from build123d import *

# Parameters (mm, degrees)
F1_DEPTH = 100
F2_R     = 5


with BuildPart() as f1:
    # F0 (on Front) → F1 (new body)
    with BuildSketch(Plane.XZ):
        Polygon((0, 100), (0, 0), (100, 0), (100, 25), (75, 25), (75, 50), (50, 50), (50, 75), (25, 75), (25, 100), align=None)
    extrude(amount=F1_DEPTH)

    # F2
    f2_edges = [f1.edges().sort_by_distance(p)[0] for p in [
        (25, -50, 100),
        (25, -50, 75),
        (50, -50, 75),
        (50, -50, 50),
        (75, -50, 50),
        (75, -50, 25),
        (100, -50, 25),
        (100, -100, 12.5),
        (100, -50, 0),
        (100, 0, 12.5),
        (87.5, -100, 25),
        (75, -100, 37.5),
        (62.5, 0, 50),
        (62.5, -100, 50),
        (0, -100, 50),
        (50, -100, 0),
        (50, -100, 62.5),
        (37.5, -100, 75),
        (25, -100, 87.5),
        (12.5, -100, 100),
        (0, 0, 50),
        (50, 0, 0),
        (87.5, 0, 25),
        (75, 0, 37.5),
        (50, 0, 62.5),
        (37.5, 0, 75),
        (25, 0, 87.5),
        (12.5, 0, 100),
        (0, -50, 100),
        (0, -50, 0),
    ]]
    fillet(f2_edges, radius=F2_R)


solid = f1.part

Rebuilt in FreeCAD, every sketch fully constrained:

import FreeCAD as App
import Part
import Sketcher

doc = App.newDocument("Part")
params = doc.addObject("Spreadsheet::Sheet", "Params")
for row, (alias, value) in enumerate([
    ("sketch1_width", "100 mm"),
    ("pad1_length", "100 mm"),
    ("fillet_radius", "5 mm"),
], start=1):
    params.set(f"A{row}", alias)
    params.set(f"B{row}", "=" + value)
    params.setAlias(f"B{row}", alias)

body = doc.addObject("PartDesign::Body", "Body")

# Sketch on XZ plane
sketch1 = doc.addObject("Sketcher::SketchObject", "Sketch")
body.addObject(sketch1)
sketch1.AttachmentSupport = (doc.XZ_Plane, [""])
sketch1.MapMode = "FlatFace"
sketch1.addGeometry(Part.LineSegment(App.Vector(0, 100, 0), App.Vector(0, 0, 0)), False)
sketch1.addGeometry(Part.LineSegment(App.Vector(0, 0, 0), App.Vector(100, 0, 0)), False)
sketch1.addGeometry(Part.LineSegment(App.Vector(100, 0, 0), App.Vector(100, 25, 0)), False)
sketch1.addGeometry(Part.LineSegment(App.Vector(100, 25, 0), App.Vector(75, 25, 0)), False)
sketch1.addGeometry(Part.LineSegment(App.Vector(75, 25, 0), App.Vector(75, 50, 0)), False)
sketch1.addGeometry(Part.LineSegment(App.Vector(75, 50, 0), App.Vector(50, 50, 0)), False)
sketch1.addGeometry(Part.LineSegment(App.Vector(50, 50, 0), App.Vector(50, 75, 0)), False)
sketch1.addGeometry(Part.LineSegment(App.Vector(50, 75, 0), App.Vector(25, 75, 0)), False)
sketch1.addGeometry(Part.LineSegment(App.Vector(25, 75, 0), App.Vector(25, 100, 0)), False)
sketch1.addGeometry(Part.LineSegment(App.Vector(25, 100, 0), App.Vector(0, 100, 0)), False)
sketch1.addConstraint(Sketcher.Constraint("Coincident", 0, 2, 1, 1))
sketch1.addConstraint(Sketcher.Constraint("Coincident", 1, 2, 2, 1))
sketch1.addConstraint(Sketcher.Constraint("Coincident", 2, 2, 3, 1))
sketch1.addConstraint(Sketcher.Constraint("Coincident", 3, 2, 4, 1))
sketch1.addConstraint(Sketcher.Constraint("Coincident", 4, 2, 5, 1))
sketch1.addConstraint(Sketcher.Constraint("Coincident", 5, 2, 6, 1))
sketch1.addConstraint(Sketcher.Constraint("Coincident", 6, 2, 7, 1))
sketch1.addConstraint(Sketcher.Constraint("Coincident", 7, 2, 8, 1))
sketch1.addConstraint(Sketcher.Constraint("Coincident", 8, 2, 9, 1))
sketch1.addConstraint(Sketcher.Constraint("Coincident", 9, 2, 0, 1))
sketch1.addConstraint(Sketcher.Constraint("Vertical", 0))
sketch1.addConstraint(Sketcher.Constraint("Horizontal", 1))
sketch1.addConstraint(Sketcher.Constraint("Vertical", 2))
sketch1.addConstraint(Sketcher.Constraint("Horizontal", 3))
sketch1.addConstraint(Sketcher.Constraint("Vertical", 4))
sketch1.addConstraint(Sketcher.Constraint("Horizontal", 5))
sketch1.addConstraint(Sketcher.Constraint("Vertical", 6))
sketch1.addConstraint(Sketcher.Constraint("Horizontal", 7))
sketch1.addConstraint(Sketcher.Constraint("Vertical", 8))
sketch1.addConstraint(Sketcher.Constraint("Horizontal", 9))
sketch1.addConstraint(Sketcher.Constraint("Coincident", 0, 2, -1, 1))
sketch1.addConstraint(Sketcher.Constraint("Equal", 3, 5))
sketch1.addConstraint(Sketcher.Constraint("Equal", 5, 7))
sketch1.addConstraint(Sketcher.Constraint("Equal", 7, 9))
sketch1.addConstraint(Sketcher.Constraint("Equal", 1, 0))
sketch1.addConstraint(Sketcher.Constraint("Equal", 9, 2))
sketch1.addConstraint(Sketcher.Constraint("Equal", 2, 4))
sketch1.addConstraint(Sketcher.Constraint("Equal", 4, 6))
sketch1.addConstraint(Sketcher.Constraint("DistanceX", 1, 1, 1, 2, 100.0))
sketch1.setExpression("Constraints[28]", "Params.sketch1_width")
pad1 = doc.addObject("PartDesign::Pad", "Pad")
body.addObject(pad1)
pad1.Profile = sketch1
pad1.setExpression("Length", "Params.pad1_length")
doc.recompute()

fillet = doc.addObject("PartDesign::Fillet", "Fillet")
body.addObject(fillet)
fillet.Base = (pad1, ["Edge1"])
fillet.UseAllEdges = True
fillet.setExpression("Radius", "Params.fillet_radius")

doc.recompute()
